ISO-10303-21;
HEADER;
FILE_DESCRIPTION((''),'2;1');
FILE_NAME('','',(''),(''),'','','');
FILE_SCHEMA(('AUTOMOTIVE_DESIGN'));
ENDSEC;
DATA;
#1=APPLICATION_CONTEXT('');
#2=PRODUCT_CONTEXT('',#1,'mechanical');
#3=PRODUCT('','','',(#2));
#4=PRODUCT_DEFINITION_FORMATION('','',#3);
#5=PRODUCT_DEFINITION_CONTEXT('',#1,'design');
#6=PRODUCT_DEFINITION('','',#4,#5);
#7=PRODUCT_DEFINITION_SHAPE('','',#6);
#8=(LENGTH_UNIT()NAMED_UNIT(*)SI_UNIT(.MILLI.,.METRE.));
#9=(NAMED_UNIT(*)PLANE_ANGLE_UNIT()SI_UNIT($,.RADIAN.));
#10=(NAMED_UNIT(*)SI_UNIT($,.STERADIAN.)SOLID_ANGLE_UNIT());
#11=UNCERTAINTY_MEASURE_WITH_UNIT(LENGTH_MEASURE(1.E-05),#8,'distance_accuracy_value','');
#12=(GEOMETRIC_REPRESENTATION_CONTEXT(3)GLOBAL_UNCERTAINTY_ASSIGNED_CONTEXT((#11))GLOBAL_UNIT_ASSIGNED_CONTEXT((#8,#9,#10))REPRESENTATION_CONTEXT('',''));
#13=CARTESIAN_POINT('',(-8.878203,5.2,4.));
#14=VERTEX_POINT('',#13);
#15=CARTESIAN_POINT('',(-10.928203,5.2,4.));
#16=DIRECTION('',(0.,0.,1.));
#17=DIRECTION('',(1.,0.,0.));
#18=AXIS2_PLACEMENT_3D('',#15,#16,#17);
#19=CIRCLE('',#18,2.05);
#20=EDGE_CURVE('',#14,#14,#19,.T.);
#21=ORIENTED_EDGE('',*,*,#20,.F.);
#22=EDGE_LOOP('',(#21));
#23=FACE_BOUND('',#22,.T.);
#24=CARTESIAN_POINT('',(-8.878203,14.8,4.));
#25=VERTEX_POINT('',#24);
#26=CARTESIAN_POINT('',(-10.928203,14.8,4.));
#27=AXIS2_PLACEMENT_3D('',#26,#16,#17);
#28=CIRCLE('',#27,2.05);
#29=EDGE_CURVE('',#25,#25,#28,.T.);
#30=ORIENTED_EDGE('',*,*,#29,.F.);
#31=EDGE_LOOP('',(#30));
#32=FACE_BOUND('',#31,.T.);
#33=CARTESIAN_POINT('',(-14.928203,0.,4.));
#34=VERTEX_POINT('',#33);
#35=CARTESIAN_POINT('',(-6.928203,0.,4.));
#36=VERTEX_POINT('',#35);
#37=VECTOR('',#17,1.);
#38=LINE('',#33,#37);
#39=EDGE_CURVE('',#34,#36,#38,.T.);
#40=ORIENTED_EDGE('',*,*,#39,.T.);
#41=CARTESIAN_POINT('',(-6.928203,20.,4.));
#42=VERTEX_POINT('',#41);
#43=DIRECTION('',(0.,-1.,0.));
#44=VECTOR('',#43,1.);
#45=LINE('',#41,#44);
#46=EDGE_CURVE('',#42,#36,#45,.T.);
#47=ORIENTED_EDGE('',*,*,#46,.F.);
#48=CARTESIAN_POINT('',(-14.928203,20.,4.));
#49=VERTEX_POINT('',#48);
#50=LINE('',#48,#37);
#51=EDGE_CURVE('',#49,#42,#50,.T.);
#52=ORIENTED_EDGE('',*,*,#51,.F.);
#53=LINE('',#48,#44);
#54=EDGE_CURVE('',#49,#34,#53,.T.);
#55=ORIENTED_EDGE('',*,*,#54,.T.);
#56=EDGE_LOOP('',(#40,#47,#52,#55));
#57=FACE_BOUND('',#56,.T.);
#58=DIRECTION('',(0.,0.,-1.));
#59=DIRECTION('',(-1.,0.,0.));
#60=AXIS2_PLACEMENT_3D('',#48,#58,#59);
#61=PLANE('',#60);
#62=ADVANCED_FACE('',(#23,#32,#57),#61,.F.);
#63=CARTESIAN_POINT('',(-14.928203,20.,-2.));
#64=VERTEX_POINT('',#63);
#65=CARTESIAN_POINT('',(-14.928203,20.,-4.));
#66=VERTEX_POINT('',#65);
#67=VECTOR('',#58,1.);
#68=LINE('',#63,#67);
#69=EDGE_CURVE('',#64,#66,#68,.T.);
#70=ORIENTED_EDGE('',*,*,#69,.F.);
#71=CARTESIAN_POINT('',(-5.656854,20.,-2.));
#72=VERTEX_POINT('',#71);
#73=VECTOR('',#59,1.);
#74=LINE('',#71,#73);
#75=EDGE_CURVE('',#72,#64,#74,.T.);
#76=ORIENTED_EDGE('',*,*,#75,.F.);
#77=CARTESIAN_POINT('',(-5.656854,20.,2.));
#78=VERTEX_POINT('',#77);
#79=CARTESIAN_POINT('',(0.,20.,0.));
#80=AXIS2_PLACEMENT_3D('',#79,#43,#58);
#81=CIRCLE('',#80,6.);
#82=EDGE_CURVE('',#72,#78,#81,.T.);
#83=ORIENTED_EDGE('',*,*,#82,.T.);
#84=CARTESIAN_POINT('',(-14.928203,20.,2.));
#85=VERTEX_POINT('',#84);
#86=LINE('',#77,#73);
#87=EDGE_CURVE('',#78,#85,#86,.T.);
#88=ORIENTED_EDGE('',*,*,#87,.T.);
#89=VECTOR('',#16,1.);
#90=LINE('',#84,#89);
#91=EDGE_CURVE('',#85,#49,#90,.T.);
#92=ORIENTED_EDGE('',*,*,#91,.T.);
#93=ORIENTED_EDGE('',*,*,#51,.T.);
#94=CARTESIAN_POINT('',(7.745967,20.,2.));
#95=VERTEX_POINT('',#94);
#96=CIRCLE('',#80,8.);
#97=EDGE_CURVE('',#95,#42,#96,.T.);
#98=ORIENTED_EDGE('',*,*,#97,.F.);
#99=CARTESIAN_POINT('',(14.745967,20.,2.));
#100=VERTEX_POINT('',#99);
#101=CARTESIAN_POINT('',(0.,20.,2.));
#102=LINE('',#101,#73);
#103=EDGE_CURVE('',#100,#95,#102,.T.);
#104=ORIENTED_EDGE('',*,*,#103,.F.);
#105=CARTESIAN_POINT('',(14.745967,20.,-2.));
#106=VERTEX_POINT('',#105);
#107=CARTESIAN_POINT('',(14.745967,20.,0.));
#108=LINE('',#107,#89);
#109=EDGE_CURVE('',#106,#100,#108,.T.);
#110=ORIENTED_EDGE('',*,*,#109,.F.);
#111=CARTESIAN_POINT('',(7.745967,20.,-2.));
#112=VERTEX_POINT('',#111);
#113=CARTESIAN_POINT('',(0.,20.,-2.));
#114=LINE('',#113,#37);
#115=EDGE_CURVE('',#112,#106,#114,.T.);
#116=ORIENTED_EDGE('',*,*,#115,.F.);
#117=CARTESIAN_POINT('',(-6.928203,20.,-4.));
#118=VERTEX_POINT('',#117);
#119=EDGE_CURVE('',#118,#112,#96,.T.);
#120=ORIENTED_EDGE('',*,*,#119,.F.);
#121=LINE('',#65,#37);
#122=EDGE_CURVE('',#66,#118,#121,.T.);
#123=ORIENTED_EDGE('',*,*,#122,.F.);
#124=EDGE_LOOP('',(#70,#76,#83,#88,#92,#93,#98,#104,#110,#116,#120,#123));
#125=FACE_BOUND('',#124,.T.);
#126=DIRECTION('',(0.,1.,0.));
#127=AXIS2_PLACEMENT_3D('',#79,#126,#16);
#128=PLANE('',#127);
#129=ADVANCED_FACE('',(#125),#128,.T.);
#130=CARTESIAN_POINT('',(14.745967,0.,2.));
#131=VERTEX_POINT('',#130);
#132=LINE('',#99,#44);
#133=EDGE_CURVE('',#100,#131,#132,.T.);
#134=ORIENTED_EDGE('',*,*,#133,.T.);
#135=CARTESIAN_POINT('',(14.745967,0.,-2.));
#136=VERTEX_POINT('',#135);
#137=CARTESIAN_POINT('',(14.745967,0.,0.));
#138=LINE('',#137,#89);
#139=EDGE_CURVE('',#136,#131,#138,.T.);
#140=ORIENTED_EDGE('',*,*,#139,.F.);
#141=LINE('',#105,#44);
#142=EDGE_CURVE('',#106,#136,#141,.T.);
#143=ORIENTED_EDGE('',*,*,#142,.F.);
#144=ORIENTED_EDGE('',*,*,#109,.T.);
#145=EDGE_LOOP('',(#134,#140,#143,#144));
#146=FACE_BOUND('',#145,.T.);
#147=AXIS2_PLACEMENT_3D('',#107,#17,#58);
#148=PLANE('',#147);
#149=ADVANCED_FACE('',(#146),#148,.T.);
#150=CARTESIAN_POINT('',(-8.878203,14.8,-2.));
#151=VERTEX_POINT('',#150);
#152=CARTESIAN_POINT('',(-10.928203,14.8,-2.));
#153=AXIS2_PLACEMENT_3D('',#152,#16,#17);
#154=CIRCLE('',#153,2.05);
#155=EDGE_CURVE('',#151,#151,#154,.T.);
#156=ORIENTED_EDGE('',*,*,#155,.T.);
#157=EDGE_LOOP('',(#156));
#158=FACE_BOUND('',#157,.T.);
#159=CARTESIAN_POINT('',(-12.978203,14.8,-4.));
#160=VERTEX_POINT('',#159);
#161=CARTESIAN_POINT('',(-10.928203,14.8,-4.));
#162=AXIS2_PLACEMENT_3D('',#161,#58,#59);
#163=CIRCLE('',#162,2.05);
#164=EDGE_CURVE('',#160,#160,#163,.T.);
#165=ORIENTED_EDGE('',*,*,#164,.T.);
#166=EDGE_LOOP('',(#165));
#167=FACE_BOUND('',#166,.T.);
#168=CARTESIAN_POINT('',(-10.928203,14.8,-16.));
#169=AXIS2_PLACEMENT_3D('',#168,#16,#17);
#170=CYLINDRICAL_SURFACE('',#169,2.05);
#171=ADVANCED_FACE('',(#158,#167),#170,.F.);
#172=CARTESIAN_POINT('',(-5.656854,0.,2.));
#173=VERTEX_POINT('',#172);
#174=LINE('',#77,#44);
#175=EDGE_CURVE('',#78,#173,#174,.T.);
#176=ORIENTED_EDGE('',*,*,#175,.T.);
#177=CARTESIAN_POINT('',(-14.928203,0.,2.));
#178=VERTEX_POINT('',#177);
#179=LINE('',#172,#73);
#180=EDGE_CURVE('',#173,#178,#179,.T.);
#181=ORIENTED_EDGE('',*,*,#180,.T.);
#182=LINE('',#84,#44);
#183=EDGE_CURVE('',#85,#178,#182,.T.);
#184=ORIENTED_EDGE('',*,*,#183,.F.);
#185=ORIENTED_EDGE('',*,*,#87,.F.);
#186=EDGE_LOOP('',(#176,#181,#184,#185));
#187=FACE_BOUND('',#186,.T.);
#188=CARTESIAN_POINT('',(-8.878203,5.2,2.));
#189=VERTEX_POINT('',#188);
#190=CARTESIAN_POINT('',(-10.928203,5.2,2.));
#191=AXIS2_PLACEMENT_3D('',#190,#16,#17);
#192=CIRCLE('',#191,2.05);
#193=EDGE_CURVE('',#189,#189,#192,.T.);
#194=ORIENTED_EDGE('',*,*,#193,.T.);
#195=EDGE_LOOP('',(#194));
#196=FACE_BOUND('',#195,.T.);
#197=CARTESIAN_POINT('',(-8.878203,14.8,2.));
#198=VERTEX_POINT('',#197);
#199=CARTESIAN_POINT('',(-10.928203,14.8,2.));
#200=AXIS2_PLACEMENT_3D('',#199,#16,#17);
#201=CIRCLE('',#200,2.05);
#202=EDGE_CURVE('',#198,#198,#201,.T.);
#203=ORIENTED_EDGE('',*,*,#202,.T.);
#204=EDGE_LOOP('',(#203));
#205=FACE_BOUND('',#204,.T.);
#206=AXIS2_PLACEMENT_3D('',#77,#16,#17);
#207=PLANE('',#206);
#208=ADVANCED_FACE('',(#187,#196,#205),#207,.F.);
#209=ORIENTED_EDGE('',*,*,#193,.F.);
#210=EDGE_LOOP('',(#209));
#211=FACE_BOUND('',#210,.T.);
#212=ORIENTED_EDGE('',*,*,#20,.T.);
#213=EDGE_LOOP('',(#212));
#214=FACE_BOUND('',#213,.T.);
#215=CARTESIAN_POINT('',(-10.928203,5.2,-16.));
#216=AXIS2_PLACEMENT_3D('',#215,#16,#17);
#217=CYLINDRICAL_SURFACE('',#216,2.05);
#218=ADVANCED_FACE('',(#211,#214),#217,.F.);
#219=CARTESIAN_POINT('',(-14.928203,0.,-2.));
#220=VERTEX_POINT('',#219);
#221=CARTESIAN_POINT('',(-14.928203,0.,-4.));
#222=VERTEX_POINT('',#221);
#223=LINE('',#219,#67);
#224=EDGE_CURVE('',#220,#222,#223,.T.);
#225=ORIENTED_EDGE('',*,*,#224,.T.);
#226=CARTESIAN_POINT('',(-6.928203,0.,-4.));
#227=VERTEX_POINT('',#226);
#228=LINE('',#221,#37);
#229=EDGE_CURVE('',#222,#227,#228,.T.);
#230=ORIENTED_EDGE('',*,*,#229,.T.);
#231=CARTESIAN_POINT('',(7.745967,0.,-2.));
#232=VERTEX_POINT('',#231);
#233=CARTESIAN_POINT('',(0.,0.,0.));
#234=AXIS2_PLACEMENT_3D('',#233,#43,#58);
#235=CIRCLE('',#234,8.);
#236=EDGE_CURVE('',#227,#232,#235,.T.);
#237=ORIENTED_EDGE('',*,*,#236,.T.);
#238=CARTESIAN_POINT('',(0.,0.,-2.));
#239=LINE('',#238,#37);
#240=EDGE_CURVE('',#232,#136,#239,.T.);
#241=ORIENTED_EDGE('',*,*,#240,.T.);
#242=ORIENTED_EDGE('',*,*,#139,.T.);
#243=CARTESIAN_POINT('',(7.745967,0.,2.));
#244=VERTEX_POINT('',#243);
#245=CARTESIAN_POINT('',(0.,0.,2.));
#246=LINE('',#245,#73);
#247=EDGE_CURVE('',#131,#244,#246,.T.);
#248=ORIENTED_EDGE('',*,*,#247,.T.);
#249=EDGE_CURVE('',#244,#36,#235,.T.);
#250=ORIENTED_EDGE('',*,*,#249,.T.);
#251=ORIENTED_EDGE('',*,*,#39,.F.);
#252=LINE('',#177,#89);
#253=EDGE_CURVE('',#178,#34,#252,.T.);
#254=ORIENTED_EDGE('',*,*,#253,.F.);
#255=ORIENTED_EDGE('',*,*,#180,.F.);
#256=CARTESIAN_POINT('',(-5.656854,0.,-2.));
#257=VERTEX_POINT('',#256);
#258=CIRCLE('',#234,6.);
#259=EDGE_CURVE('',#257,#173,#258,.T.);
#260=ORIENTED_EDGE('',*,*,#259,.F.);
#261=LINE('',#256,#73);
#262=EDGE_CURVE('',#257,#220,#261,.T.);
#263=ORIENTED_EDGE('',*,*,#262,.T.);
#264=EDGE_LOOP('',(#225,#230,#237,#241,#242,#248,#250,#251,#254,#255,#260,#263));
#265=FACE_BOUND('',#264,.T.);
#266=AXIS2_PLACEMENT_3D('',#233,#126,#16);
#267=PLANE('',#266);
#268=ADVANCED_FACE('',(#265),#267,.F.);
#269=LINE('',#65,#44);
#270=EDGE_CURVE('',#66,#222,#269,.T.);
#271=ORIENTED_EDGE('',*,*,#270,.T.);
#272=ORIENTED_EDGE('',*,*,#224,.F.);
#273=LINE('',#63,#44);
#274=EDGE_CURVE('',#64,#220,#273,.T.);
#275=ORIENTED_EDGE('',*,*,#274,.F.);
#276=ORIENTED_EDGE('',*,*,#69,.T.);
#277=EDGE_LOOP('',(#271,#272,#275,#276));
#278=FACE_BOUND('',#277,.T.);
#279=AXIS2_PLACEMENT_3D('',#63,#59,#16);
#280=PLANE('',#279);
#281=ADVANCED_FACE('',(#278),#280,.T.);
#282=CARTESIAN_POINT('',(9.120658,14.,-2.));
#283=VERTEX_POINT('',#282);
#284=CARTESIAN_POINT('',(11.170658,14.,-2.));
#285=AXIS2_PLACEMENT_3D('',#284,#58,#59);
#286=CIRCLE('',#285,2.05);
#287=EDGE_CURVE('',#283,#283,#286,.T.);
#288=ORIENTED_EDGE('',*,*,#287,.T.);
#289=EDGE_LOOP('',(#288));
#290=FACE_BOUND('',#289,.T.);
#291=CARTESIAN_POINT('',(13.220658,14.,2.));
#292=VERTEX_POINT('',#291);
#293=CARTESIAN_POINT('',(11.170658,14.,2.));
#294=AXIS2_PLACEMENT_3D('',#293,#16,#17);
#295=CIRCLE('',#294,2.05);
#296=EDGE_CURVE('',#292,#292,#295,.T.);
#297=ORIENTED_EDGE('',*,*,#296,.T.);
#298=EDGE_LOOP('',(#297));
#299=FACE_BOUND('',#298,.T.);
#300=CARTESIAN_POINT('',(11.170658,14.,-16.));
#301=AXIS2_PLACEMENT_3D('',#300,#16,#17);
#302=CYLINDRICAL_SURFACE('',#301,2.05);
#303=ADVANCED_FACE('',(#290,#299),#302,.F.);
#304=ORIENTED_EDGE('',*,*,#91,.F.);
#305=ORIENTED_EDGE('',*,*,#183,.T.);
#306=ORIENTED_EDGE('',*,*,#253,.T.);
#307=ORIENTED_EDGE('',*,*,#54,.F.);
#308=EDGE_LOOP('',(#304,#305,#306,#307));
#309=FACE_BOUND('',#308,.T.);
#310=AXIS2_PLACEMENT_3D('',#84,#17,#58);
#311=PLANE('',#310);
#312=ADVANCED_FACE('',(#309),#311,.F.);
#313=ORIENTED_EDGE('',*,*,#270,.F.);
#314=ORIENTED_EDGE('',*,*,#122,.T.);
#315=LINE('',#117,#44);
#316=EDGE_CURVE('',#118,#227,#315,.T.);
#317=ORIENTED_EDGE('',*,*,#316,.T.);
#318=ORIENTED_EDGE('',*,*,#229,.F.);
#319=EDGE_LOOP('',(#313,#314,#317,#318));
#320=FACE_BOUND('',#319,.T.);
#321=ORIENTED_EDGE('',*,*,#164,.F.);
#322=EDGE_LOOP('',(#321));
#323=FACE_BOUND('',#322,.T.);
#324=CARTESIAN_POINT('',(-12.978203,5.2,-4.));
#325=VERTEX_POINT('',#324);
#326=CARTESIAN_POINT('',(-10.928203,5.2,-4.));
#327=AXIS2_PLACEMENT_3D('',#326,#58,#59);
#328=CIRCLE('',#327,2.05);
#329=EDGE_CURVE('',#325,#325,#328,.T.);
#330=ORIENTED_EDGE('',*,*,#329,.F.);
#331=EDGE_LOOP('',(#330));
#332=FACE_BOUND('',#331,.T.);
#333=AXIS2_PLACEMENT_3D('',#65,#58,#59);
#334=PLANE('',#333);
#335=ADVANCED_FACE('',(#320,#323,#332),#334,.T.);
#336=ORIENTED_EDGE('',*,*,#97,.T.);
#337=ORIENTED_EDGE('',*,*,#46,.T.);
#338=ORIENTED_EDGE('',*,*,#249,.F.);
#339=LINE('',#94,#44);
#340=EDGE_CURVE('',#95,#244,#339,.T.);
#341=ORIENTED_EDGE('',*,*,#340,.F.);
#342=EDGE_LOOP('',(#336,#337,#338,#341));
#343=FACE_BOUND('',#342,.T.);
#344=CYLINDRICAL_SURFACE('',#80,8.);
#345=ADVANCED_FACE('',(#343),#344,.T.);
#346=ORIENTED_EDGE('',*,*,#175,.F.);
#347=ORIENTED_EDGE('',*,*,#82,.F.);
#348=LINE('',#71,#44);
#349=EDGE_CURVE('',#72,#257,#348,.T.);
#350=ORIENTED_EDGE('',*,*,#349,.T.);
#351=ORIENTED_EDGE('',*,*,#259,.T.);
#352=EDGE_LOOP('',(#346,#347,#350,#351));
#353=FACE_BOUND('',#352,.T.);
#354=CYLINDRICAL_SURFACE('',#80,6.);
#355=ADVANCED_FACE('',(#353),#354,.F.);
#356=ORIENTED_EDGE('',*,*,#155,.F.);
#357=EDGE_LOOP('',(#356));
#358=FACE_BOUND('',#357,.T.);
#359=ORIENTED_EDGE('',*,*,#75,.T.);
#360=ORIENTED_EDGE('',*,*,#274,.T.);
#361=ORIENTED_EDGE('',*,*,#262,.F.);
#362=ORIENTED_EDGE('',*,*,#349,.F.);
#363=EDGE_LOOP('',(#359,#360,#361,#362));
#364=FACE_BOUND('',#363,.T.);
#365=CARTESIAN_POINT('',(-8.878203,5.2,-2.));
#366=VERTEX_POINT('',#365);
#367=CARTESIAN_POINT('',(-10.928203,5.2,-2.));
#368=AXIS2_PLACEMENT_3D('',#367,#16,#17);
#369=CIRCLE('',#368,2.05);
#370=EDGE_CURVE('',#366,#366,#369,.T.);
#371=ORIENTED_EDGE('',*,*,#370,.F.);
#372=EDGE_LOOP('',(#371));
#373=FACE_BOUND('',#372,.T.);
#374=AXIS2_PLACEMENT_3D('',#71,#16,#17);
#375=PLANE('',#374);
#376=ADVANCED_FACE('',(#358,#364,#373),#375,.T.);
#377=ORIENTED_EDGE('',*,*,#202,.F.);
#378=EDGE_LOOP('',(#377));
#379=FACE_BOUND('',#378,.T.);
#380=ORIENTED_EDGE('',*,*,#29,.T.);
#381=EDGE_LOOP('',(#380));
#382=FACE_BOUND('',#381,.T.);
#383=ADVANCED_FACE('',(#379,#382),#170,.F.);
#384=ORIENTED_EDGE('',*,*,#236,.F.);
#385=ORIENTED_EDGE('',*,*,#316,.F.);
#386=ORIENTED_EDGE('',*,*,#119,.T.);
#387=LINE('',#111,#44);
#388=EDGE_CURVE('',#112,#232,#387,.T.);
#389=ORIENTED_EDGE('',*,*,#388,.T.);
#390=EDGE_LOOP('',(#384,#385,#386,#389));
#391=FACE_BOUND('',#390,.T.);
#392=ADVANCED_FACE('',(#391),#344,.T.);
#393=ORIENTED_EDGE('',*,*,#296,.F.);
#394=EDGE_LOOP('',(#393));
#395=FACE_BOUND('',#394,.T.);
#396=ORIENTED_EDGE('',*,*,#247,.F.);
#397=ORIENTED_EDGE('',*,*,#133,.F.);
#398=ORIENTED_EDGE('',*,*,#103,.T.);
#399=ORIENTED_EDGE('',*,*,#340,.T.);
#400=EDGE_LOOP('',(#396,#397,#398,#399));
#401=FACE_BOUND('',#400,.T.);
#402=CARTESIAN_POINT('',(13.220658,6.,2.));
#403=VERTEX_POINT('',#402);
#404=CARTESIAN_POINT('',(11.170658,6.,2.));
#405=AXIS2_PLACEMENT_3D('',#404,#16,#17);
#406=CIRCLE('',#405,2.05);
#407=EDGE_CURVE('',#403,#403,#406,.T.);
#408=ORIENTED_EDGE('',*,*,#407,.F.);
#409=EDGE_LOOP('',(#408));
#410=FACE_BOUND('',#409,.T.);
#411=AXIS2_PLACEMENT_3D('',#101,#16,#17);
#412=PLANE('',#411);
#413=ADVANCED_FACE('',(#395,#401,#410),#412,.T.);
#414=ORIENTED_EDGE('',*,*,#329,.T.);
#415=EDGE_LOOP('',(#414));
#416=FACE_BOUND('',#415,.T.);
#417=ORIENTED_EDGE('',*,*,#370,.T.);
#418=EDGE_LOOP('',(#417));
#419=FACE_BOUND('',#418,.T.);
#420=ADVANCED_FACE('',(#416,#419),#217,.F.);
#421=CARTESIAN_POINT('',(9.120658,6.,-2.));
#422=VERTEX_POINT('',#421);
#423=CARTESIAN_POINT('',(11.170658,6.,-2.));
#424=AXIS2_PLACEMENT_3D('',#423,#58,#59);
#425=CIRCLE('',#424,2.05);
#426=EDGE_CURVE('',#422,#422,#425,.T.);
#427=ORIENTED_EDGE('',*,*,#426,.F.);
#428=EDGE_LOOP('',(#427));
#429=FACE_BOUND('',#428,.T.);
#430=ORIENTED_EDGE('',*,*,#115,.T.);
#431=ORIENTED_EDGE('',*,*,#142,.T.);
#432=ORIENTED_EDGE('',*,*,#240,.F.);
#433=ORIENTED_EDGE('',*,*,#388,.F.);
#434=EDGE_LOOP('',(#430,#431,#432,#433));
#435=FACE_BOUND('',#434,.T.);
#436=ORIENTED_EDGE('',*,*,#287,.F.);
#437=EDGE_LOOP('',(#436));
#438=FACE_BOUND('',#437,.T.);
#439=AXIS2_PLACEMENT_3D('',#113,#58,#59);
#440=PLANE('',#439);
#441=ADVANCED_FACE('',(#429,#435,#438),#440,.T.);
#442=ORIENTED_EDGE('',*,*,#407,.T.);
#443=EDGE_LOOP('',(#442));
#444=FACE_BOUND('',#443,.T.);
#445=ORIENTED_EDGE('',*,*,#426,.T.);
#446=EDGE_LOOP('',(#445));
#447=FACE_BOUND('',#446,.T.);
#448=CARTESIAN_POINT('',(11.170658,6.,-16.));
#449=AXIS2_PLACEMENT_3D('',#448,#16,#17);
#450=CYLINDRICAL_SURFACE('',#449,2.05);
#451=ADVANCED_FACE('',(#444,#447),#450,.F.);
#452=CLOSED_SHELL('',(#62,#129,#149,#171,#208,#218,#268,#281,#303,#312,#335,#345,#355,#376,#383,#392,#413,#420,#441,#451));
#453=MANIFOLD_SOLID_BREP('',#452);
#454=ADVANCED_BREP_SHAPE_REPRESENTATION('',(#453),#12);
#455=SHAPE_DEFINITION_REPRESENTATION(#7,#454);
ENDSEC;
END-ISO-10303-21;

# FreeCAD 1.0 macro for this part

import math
import FreeCAD as App
import Part
import Sketcher
from FreeCAD import Vector
Q = App.Units.Quantity

doc = App.newDocument("Part")
body = doc.addObject("PartDesign::Body", "Body")

# Sketch on XZ plane
sketch1 = body.newObject("Sketcher::SketchObject", "Sketch")
sketch1.AttachmentSupport = (doc.getObject("XZ_Plane"), [""])
sketch1.MapMode = "FlatFace"
sketch1.addGeometry(Part.LineSegment(Vector(-14.9, -2, 0), Vector(-5.7, -2, 0)), False)
sketch1.addGeometry(Part.ArcOfCircle(Part.Circle(Vector(0, 0, 0), Vector(0, 0, 1), 6), math.radians(-161), math.radians(161)), False)
sketch1.addGeometry(Part.LineSegment(Vector(-5.7, 2, 0), Vector(-14.9, 2, 0)), False)
sketch1.addGeometry(Part.LineSegment(Vector(-14.9, 2, 0), Vector(-14.9, 4, 0)), False)
sketch1.addGeometry(Part.LineSegment(Vector(-14.9, 4, 0), Vector(-6.9, 4, 0)), False)
sketch1.addGeometry(Part.ArcOfCircle(Part.Circle(Vector(0, 0, 0), Vector(0, 0, 1), 8), math.radians(14), math.radians(150)), False)
sketch1.addGeometry(Part.LineSegment(Vector(7.7, 2, 0), Vector(14.7, 2, 0)), False)
sketch1.addGeometry(Part.LineSegment(Vector(14.7, 2, 0), Vector(14.7, -2, 0)), False)
sketch1.addGeometry(Part.LineSegment(Vector(14.7, -2, 0), Vector(7.7, -2, 0)), False)
sketch1.addGeometry(Part.ArcOfCircle(Part.Circle(Vector(0, 0, 0), Vector(0, 0, 1), 8), math.radians(-150), math.radians(-14)), False)
sketch1.addGeometry(Part.LineSegment(Vector(-6.9, -4, 0), Vector(-14.9, -4, 0)), False)
sketch1.addGeometry(Part.LineSegment(Vector(-14.9, -4, 0), Vector(-14.9, -2, 0)), False)
sketch1.addConstraint(Sketcher.Constraint("Coincident", 0, 2, 1, 1))
sketch1.addConstraint(Sketcher.Constraint("Coincident", 1, 2, 2, 1))
sketch1.addConstraint(Sketcher.Constraint("Coincident", 2, 2, 3, 1))
sketch1.addConstraint(Sketcher.Constraint("Coincident", 3, 2, 4, 1))
sketch1.addConstraint(Sketcher.Constraint("Coincident", 4, 2, 5, 2))
sketch1.addConstraint(Sketcher.Constraint("Coincident", 5, 1, 6, 1))
sketch1.addConstraint(Sketcher.Constraint("Coincident", 6, 2, 7, 1))
sketch1.addConstraint(Sketcher.Constraint("Coincident", 7, 2, 8, 1))
sketch1.addConstraint(Sketcher.Constraint("Coincident", 8, 2, 9, 2))
sketch1.addConstraint(Sketcher.Constraint("Coincident", 9, 1, 10, 1))
sketch1.addConstraint(Sketcher.Constraint("Coincident", 10, 2, 11, 1))
sketch1.addConstraint(Sketcher.Constraint("Coincident", 11, 2, 0, 1))
sketch1.addConstraint(Sketcher.Constraint("Horizontal", 0))
sketch1.addConstraint(Sketcher.Constraint("Horizontal", 2))
sketch1.addConstraint(Sketcher.Constraint("Vertical", 3))
sketch1.addConstraint(Sketcher.Constraint("Horizontal", 4))
sketch1.addConstraint(Sketcher.Constraint("Horizontal", 6))
sketch1.addConstraint(Sketcher.Constraint("Vertical", 7))
sketch1.addConstraint(Sketcher.Constraint("Horizontal", 8))
sketch1.addConstraint(Sketcher.Constraint("Horizontal", 10))
sketch1.addConstraint(Sketcher.Constraint("Vertical", 11))
sketch1.addConstraint(Sketcher.Constraint("Coincident", 1, 3, -1, 1))
sketch1.addConstraint(Sketcher.Constraint("Coincident", 5, 3, -1, 1))
sketch1.addConstraint(Sketcher.Constraint("Coincident", 9, 3, -1, 1))
sketch1.addConstraint(Sketcher.Constraint("Equal", 5, 9))
sketch1.addConstraint(Sketcher.Constraint("Symmetric", 3, 2, 10, 2, -1))
sketch1.addConstraint(Sketcher.Constraint("Horizontal", 2, 2, 5, 1))
sketch1.addConstraint(Sketcher.Constraint("Horizontal", 0, 2, 7, 2))
sketch1.addConstraint(Sketcher.Constraint("Vertical", 0, 2, 1, 2))
sketch1.addConstraint(Sketcher.Constraint("Radius", 1, Q("6 mm")))
sketch1.addConstraint(Sketcher.Constraint("Radius", 5, Q("8 mm")))
sketch1.addConstraint(Sketcher.Constraint("DistanceX", 4, 1, 4, 2, Q("8 mm")))
sketch1.addConstraint(Sketcher.Constraint("DistanceX", 6, 1, 6, 2, Q("7 mm")))
sketch1.addConstraint(Sketcher.Constraint("DistanceY", 3, 1, 3, 2, Q("2 mm")))
sketch1.addConstraint(Sketcher.Constraint("DistanceY", 7, 2, 7, 1, Q("4 mm")))
pad1 = body.newObject("PartDesign::Pad", "Pad")
pad1.Profile = sketch1
pad1.Length = 20
pad1.Reversed = True

# Sketch on XY plane
sketch2 = body.newObject("Sketcher::SketchObject", "Sketch001")
sketch2.AttachmentSupport = (doc.getObject("XY_Plane"), [""])
sketch2.MapMode = "FlatFace"
sketch2.AttachmentOffset = App.Placement(Vector(0, 0, 4), App.Rotation())
sketch2.addGeometry(Part.Circle(Vector(-10.9, 14.8, 0), Vector(0, 0, 1), 2), False)
sketch2.addGeometry(Part.Circle(Vector(-10.9, 5.2, 0), Vector(0, 0, 1), 2), False)
sketch2.addGeometry(Part.Circle(Vector(11.2, 14, 0), Vector(0, 0, 1), 2), False)
sketch2.addGeometry(Part.Circle(Vector(11.2, 6, 0), Vector(0, 0, 1), 2), False)
sketch2.addConstraint(Sketcher.Constraint("Equal", 0, 1))
sketch2.addConstraint(Sketcher.Constraint("Equal", 1, 2))
sketch2.addConstraint(Sketcher.Constraint("Equal", 2, 3))
sketch2.addConstraint(Sketcher.Constraint("Vertical", 0, 3, 1, 3))
sketch2.addConstraint(Sketcher.Constraint("Vertical", 2, 3, 3, 3))
sketch2.addConstraint(Sketcher.Constraint("Diameter", 0, Q("4.1 mm")))
sketch2.addConstraint(Sketcher.Constraint("DistanceY", -1, 1, 2, 3, Q("14 mm")))
sketch2.addConstraint(Sketcher.Constraint("DistanceY", -1, 1, 3, 3, Q("6 mm")))
sketch2.addConstraint(Sketcher.Constraint("DistanceY", -1, 1, 0, 3, Q("14.8 mm")))
sketch2.addConstraint(Sketcher.Constraint("DistanceY", -1, 1, 1, 3, Q("5.2 mm")))
sketch2.addConstraint(Sketcher.Constraint("DistanceX", -1, 1, 2, 3, Q("11.170658 mm")))
sketch2.addConstraint(Sketcher.Constraint("DistanceX", 0, 3, 2, 3, Q("22.098861 mm")))
pocket1 = body.newObject("PartDesign::Pocket", "Pocket")
pocket1.Profile = sketch2
pocket1.Length = 20

doc.recompute()
